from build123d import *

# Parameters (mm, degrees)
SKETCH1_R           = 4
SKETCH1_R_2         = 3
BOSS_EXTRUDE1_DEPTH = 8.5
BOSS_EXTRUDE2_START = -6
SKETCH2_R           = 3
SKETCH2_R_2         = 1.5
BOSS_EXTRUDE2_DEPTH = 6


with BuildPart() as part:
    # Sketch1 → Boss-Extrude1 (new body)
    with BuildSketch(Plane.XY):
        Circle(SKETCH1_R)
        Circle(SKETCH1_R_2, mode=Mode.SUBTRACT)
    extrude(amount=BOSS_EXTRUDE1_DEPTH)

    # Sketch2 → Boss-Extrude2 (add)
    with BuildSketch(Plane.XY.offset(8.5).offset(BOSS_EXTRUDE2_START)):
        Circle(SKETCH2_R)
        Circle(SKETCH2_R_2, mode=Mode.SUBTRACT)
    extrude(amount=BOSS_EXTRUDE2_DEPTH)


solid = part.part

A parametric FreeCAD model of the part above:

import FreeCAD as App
import Part
import Sketcher

doc = App.newDocument("Part")
body = doc.addObject("PartDesign::Body", "Body")

sketch1 = doc.addObject("Sketcher::SketchObject", "Sketch")
body.addObject(sketch1)
sketch1.AttachmentSupport = (doc.XY_Plane, [""])
sketch1.MapMode = "FlatFace"
sketch1.addGeometry(Part.Circle(App.Vector(0, 0, 0), App.Vector(0, 0, 1), 4), False)
sketch1.addGeometry(Part.Circle(App.Vector(0, 0, 0), App.Vector(0, 0, 1), 3), False)
sketch1.addConstraint(Sketcher.Constraint("Coincident", 0, 3, -1, 1))
sketch1.addConstraint(Sketcher.Constraint("Coincident", 1, 3, -1, 1))
sketch1.addConstraint(Sketcher.Constraint("Diameter", 0, 8.0))
sketch1.addConstraint(Sketcher.Constraint("Diameter", 1, 6.0))
pad1 = doc.addObject("PartDesign::Pad", "Pad")
body.addObject(pad1)
pad1.Profile = sketch1
pad1.Length = 8.5

sketch2 = doc.addObject("Sketcher::SketchObject", "Sketch001")
body.addObject(sketch2)
sketch2.AttachmentSupport = (doc.XY_Plane, [""])
sketch2.MapMode = "FlatFace"
sketch2.AttachmentOffset = App.Placement(App.Vector(0, 0, 2.5), App.Rotation())
sketch2.addGeometry(Part.Circle(App.Vector(0, 0, 0), App.Vector(0, 0, 1), 3), False)
sketch2.addGeometry(Part.Circle(App.Vector(0, 0, 0), App.Vector(0, 0, 1), 1.5), False)
sketch2.addConstraint(Sketcher.Constraint("Coincident", 0, 3, -1, 1))
sketch2.addConstraint(Sketcher.Constraint("Coincident", 1, 3, -1, 1))
sketch2.addConstraint(Sketcher.Constraint("Diameter", 0, 6.0))
sketch2.addConstraint(Sketcher.Constraint("Diameter", 1, 3.0))
pad2 = doc.addObject("PartDesign::Pad", "Pad001")
body.addObject(pad2)
pad2.Profile = sketch2
pad2.Length = 6

doc.recompute()
